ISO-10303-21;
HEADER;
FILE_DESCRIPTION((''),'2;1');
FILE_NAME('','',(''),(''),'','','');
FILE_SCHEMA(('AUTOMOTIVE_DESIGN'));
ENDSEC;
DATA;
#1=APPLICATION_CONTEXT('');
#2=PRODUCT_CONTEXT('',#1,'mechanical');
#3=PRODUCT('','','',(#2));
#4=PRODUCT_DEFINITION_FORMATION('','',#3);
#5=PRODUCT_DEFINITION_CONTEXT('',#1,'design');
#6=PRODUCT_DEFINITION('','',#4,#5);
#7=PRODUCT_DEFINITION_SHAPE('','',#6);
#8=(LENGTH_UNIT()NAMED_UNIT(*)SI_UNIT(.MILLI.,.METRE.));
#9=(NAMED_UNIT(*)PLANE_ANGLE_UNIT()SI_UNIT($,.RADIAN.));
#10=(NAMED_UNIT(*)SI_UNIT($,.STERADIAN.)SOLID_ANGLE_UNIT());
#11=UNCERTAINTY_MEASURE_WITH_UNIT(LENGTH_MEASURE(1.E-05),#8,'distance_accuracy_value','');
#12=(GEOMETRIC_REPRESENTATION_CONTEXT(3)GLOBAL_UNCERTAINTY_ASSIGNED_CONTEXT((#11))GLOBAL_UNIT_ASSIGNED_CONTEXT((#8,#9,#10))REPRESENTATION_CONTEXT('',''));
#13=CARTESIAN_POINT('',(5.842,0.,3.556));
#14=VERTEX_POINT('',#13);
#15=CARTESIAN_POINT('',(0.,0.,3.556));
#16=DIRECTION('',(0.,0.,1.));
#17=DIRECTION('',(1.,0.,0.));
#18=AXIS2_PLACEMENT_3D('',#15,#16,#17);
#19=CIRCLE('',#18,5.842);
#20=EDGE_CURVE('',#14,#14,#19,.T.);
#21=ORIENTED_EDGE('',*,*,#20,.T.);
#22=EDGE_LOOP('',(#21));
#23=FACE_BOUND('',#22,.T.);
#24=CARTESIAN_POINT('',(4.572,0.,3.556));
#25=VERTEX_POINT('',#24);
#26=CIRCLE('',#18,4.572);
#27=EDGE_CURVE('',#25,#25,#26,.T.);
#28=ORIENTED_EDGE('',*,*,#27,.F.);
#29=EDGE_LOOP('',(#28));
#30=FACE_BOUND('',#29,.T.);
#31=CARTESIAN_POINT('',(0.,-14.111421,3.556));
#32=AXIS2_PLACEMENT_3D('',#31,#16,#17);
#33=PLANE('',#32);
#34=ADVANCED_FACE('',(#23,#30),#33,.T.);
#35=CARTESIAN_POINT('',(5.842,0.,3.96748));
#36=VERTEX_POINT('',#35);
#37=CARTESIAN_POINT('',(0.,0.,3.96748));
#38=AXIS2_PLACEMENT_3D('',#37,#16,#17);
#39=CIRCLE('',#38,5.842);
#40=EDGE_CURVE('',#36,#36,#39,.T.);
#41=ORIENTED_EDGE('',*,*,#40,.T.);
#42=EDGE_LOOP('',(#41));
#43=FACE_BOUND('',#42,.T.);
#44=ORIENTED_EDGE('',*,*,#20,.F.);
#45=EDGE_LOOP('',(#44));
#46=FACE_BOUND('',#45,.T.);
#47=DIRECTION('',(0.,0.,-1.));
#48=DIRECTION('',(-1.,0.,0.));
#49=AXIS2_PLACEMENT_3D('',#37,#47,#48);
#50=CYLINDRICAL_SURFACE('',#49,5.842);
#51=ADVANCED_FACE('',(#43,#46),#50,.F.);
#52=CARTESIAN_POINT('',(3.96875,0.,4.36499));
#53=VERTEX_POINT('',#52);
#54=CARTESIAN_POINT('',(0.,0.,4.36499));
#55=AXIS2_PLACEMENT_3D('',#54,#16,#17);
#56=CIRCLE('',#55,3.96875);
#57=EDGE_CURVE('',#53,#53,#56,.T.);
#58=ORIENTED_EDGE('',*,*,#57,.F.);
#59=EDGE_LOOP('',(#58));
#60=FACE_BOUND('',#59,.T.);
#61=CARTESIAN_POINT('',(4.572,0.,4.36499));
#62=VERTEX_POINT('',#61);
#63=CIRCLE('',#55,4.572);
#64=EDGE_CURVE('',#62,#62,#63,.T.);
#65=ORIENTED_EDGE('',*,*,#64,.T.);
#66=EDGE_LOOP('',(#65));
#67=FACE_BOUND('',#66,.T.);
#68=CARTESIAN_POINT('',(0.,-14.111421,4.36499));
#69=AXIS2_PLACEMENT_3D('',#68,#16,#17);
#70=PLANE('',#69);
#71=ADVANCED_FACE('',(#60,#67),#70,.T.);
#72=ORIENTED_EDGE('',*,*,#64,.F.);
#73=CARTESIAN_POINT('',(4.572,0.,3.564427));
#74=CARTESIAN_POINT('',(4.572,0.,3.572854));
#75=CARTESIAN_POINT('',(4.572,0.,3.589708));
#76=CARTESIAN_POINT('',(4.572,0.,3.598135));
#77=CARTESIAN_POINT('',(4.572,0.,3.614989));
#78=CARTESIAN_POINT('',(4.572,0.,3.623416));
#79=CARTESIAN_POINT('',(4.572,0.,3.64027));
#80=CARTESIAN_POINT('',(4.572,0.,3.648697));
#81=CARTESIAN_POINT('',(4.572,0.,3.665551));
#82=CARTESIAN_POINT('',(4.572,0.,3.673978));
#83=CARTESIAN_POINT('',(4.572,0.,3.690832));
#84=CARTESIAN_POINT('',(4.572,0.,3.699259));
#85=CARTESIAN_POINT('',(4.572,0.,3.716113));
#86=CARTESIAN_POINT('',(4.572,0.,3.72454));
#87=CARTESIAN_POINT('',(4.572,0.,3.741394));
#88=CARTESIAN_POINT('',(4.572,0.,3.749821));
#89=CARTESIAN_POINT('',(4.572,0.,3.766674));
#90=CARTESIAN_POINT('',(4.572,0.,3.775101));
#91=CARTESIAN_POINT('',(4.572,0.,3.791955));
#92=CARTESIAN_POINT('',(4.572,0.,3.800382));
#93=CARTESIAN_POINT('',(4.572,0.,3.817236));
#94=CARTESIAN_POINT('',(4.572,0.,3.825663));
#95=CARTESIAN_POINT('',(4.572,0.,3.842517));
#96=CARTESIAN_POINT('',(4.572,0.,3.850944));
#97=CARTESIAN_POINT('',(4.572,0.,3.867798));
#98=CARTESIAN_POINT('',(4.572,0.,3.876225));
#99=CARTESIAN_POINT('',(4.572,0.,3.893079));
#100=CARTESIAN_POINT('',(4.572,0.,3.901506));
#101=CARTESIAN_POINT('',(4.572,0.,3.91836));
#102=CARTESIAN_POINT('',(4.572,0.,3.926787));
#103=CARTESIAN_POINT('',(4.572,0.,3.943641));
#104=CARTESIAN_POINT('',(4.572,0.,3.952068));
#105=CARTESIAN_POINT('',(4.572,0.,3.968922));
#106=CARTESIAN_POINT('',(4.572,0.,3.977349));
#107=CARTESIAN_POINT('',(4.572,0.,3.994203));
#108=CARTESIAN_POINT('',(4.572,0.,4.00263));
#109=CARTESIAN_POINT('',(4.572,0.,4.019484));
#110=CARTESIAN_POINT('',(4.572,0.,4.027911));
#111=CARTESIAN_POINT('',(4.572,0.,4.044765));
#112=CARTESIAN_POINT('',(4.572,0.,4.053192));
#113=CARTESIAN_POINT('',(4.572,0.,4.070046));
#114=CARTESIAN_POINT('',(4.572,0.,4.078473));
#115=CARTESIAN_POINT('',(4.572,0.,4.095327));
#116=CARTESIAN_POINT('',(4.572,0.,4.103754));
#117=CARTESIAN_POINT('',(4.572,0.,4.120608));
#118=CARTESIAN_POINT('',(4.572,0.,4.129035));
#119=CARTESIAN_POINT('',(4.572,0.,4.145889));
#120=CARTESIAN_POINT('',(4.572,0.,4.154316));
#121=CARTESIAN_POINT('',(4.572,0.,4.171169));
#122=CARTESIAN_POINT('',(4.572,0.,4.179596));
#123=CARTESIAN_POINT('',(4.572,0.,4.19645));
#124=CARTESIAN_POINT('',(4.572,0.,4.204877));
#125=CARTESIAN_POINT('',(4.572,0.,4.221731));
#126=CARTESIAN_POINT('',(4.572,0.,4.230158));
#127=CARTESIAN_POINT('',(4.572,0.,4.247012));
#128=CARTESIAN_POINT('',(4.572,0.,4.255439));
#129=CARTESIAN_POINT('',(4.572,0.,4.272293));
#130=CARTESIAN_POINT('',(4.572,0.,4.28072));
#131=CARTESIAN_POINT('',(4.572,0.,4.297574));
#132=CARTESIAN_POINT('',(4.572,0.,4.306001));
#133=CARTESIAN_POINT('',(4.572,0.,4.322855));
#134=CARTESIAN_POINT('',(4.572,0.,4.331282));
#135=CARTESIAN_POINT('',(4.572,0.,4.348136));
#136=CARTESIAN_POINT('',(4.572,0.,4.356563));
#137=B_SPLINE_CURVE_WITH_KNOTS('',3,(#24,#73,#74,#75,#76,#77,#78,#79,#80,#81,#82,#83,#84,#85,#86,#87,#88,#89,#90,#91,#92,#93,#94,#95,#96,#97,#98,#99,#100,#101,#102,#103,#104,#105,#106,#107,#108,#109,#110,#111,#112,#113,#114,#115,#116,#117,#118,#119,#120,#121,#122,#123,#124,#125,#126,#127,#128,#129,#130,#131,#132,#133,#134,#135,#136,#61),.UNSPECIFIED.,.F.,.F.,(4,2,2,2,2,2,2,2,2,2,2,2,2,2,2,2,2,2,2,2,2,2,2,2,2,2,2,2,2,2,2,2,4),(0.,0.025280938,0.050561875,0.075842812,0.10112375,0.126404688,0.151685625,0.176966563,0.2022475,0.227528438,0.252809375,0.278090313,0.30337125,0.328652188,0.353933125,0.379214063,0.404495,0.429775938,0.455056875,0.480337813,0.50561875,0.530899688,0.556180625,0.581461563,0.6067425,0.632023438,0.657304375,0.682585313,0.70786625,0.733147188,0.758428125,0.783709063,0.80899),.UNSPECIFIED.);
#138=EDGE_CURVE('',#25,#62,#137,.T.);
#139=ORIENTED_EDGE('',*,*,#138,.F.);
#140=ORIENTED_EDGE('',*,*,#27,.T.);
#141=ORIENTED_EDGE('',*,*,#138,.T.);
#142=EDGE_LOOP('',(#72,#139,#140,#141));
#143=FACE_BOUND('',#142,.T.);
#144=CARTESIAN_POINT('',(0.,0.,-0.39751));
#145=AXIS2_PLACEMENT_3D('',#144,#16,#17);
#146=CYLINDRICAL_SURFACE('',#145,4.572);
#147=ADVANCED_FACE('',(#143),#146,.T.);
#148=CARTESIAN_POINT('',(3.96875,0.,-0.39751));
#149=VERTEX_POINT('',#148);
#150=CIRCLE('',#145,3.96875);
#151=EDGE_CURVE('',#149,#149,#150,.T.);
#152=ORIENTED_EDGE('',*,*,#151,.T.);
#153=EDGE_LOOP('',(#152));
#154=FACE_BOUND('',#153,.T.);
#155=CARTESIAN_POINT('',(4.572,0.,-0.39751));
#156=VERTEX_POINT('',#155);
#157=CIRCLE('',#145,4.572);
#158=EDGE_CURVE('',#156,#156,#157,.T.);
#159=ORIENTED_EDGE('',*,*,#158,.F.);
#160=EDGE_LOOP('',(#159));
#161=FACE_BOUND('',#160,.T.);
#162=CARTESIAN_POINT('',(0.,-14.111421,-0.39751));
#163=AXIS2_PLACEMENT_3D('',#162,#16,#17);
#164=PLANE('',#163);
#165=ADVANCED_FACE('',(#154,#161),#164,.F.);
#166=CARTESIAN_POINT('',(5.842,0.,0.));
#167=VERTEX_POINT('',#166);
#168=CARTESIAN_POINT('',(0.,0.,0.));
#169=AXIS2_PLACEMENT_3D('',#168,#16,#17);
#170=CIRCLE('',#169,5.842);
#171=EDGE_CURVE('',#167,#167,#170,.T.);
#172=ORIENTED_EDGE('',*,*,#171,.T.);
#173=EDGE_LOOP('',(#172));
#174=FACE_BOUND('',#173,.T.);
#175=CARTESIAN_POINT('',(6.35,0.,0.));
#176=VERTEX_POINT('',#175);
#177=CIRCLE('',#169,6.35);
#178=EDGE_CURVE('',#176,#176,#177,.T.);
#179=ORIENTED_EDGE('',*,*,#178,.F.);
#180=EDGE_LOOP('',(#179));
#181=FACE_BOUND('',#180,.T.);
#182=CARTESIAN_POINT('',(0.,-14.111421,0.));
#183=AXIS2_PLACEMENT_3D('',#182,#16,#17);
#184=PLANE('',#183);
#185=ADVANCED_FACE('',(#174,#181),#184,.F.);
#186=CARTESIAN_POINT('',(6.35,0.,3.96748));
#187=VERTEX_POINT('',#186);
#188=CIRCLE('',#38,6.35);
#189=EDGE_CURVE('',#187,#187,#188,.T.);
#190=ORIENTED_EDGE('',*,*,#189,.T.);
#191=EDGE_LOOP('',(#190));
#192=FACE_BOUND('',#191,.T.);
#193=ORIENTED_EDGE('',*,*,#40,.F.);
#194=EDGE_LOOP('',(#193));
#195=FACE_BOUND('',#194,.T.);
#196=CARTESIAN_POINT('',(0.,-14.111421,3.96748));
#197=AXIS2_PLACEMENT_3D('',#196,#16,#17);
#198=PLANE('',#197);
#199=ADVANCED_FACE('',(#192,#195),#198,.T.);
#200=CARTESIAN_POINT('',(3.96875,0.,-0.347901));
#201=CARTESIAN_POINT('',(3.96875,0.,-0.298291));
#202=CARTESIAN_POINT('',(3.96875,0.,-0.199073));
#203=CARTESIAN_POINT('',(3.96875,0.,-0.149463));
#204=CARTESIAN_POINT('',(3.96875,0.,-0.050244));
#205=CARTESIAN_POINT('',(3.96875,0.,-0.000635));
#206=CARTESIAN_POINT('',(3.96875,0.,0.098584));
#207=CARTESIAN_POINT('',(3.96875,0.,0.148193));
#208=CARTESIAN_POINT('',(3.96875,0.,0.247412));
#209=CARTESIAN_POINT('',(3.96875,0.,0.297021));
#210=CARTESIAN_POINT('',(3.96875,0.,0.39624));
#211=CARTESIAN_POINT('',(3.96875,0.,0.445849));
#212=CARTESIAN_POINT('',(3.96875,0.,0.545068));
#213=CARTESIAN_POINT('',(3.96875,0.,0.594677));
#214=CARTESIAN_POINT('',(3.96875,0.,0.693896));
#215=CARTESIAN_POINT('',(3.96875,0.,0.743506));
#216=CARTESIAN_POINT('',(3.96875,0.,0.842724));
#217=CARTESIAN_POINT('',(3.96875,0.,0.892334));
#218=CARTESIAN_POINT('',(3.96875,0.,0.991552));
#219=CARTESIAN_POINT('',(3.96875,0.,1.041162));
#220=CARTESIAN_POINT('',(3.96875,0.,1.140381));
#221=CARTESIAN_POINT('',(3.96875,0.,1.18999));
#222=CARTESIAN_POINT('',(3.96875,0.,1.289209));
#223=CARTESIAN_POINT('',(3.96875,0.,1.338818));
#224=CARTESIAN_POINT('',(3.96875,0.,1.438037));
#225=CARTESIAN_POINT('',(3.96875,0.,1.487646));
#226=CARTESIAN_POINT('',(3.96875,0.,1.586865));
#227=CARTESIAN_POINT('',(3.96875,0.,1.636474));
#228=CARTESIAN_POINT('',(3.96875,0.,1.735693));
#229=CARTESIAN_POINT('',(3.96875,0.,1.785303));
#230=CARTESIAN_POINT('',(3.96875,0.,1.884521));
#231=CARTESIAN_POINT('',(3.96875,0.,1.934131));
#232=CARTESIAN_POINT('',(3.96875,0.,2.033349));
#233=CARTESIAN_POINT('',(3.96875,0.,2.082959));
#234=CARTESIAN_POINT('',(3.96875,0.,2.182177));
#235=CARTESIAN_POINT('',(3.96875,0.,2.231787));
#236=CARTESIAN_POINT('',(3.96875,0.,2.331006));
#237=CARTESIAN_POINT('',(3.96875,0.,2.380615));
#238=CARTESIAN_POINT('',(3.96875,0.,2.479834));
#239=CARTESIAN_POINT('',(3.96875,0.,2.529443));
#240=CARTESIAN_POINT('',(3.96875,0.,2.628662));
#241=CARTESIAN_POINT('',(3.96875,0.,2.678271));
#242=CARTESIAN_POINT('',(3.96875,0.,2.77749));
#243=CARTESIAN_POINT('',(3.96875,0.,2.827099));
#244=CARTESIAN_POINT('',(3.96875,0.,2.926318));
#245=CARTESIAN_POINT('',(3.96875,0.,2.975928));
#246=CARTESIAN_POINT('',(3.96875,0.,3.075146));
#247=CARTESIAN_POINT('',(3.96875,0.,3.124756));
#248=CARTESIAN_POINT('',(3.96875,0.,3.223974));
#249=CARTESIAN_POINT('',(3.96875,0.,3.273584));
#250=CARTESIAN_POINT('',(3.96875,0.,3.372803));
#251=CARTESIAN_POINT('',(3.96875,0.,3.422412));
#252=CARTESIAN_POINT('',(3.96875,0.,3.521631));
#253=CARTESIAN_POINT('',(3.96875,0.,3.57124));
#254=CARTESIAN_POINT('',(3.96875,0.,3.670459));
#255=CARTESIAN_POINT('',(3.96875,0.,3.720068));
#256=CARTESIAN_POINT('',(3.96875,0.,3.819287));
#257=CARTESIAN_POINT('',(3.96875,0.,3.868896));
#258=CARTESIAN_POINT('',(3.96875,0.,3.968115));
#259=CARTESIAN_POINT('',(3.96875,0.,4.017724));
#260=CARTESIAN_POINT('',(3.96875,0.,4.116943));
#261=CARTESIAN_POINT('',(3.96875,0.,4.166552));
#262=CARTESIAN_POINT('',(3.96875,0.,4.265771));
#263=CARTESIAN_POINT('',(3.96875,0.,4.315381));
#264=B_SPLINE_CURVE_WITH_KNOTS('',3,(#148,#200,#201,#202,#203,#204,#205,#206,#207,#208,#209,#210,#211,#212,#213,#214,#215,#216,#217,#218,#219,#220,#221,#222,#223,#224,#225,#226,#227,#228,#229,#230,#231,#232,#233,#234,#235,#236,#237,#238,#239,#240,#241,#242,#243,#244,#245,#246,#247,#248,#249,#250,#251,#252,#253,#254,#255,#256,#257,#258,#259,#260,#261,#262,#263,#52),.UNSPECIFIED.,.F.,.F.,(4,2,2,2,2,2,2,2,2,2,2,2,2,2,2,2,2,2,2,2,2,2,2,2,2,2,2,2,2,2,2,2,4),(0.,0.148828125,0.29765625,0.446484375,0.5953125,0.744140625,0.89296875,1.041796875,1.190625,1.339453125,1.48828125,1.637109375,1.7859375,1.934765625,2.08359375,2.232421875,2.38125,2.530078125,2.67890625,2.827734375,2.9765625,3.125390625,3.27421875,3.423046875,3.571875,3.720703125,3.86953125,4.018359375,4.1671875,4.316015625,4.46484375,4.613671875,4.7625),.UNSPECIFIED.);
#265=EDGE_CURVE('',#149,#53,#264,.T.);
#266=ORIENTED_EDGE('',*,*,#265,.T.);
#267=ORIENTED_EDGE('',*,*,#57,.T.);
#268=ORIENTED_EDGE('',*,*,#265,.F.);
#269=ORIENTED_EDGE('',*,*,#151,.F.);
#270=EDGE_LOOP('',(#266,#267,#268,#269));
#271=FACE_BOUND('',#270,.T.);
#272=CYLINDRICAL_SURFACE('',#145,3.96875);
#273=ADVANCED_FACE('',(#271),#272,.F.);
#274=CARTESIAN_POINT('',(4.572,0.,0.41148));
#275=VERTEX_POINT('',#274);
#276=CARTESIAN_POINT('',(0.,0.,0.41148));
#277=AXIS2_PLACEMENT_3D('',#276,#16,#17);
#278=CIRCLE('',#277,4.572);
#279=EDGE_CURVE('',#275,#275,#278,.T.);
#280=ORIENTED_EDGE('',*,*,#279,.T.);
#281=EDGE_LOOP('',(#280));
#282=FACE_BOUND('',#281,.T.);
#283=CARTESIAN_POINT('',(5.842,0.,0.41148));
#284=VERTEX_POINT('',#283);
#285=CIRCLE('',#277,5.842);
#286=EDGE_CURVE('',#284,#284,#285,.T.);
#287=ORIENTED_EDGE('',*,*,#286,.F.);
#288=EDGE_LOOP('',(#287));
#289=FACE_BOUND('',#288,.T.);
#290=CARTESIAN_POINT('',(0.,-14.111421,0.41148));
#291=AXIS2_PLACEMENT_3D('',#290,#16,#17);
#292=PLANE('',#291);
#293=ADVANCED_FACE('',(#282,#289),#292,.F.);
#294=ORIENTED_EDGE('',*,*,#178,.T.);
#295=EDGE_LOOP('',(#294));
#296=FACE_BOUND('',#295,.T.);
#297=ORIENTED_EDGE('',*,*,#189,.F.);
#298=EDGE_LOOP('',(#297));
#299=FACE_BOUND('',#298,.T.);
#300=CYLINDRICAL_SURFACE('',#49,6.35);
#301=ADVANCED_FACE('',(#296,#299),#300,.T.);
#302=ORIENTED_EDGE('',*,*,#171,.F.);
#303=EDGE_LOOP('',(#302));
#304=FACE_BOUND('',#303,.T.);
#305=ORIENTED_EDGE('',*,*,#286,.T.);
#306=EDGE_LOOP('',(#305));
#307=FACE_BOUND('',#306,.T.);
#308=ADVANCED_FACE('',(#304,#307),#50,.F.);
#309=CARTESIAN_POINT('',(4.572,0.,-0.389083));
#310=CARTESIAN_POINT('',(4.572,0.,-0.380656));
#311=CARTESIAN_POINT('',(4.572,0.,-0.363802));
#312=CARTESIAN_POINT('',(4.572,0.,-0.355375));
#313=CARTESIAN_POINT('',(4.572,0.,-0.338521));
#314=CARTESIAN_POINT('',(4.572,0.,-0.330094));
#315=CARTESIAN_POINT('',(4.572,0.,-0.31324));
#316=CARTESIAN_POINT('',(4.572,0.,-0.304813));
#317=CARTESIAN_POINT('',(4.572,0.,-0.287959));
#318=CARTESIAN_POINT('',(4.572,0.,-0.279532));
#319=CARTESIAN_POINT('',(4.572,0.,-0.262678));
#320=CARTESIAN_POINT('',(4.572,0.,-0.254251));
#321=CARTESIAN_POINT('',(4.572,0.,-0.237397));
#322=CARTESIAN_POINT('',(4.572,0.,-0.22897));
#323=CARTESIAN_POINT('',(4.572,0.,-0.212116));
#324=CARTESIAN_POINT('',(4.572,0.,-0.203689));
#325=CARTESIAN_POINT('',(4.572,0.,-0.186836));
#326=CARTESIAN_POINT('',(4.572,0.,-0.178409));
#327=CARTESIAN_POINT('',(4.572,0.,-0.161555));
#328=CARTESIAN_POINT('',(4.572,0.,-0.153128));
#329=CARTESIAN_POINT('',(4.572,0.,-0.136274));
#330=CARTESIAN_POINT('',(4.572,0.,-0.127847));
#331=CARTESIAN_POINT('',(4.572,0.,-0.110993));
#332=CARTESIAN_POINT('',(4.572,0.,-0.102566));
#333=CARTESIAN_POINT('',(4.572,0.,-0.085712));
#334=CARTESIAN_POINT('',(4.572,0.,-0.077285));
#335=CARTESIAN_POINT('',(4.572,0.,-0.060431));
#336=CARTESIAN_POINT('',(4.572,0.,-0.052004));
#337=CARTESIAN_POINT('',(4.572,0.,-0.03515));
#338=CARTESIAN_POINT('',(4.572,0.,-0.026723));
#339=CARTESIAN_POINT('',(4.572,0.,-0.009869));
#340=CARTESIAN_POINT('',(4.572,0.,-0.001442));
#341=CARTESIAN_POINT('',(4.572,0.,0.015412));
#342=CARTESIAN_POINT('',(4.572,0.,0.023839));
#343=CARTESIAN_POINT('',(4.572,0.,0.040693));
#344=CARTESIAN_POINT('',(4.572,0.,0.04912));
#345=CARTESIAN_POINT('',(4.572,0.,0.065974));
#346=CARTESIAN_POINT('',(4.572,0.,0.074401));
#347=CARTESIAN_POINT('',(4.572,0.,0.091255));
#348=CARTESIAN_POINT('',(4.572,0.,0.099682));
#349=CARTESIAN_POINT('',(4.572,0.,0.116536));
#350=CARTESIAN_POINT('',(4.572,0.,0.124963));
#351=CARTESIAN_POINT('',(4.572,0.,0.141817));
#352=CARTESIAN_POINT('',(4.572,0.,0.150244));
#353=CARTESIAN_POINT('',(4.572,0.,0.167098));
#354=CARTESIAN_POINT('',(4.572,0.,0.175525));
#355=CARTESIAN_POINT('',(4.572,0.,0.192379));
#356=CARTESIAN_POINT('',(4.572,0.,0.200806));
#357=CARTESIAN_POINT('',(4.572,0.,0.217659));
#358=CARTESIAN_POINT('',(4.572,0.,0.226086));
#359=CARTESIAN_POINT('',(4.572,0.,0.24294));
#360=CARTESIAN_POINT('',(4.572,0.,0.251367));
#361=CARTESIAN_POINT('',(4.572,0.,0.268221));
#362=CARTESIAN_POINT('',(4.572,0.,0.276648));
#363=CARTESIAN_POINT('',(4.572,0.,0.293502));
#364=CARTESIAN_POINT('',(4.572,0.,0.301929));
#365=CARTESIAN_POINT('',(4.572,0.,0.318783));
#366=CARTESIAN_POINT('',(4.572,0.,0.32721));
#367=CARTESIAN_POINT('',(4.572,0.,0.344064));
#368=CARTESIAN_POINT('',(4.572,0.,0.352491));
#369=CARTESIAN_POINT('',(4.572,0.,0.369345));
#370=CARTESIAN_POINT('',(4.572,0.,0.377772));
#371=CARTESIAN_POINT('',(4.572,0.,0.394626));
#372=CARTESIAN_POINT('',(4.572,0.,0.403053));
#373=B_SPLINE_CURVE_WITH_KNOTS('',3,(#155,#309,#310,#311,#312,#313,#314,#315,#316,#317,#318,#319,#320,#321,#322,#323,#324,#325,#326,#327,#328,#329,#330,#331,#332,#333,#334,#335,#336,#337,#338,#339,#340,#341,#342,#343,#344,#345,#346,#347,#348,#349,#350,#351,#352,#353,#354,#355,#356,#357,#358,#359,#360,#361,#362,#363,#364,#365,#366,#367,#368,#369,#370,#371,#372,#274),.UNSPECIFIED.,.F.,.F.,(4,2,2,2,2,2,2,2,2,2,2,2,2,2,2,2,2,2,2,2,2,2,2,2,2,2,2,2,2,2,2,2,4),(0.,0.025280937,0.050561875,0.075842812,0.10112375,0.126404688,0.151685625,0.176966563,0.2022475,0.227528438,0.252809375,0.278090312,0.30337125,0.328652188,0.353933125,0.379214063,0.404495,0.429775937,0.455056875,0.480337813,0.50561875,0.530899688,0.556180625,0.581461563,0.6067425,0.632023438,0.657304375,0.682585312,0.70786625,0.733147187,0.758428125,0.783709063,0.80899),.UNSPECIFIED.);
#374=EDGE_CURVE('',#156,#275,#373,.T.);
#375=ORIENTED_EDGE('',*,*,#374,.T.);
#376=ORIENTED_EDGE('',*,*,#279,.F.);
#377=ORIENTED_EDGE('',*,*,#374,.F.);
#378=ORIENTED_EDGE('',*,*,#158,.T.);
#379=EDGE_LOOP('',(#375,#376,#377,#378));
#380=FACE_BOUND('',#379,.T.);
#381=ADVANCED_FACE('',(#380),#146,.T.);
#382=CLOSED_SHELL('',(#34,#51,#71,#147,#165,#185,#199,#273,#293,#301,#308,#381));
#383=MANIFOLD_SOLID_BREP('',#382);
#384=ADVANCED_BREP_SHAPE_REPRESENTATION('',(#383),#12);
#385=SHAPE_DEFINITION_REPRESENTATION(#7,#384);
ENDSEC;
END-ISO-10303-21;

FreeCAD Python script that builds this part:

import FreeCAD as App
import Part
import Sketcher
from FreeCAD import Vector
Q = App.Units.Quantity

doc = App.newDocument("Part")
body = doc.addObject("PartDesign::Body", "Body")

sketch1 = body.newObject("Sketcher::SketchObject", "Sketch")
sketch1.AttachmentSupport = (doc.getObject("XY_Plane"), [""])
sketch1.MapMode = "FlatFace"
sketch1.addGeometry(Part.Circle(Vector(0, 0, 0), Vector(0, 0, 1), 6), False)
sketch1.addGeometry(Part.Circle(Vector(0, 0, 0), Vector(0, 0, 1), 6), False)
sketch1.addConstraint(Sketcher.Constraint("Coincident", 0, 3, -1, 1))
sketch1.addConstraint(Sketcher.Constraint("Coincident", 1, 3, -1, 1))
sketch1.addConstraint(Sketcher.Constraint("Diameter", 0, Q("0.5 in")))
sketch1.addConstraint(Sketcher.Constraint("Diameter", 1, Q("0.46 in")))
pad1 = body.newObject("PartDesign::Pad", "Pad")
pad1.Profile = sketch1
pad1.Length = Q("0.1562 in")
body2 = doc.addObject("PartDesign::Body", "Body001")

sketch2 = body2.newObject("Sketcher::SketchObject", "Sketch001")
sketch2.AttachmentSupport = (doc.getObject("XY_Plane001"), [""])
sketch2.MapMode = "FlatFace"
sketch2.addGeometry(Part.Circle(Vector(0, 0, 0), Vector(0, 0, 1), 4.6), False)
sketch2.addGeometry(Part.Circle(Vector(0, 0, 0), Vector(0, 0, 1), 4), False)
sketch2.addConstraint(Sketcher.Constraint("Coincident", 0, 3, -1, 1))
sketch2.addConstraint(Sketcher.Constraint("Coincident", 1, 3, -1, 1))
sketch2.addConstraint(Sketcher.Constraint("Diameter", 0, Q("0.36 in")))
sketch2.addConstraint(Sketcher.Constraint("Diameter", 1, Q("0.3125 in")))
pad2 = body2.newObject("PartDesign::Pad", "Pad001")
pad2.Profile = sketch2
pad2.Type = "TwoLengths"
pad2.Length = 4.36499
pad2.Length2 = 0.39751
body.AllowCompound = True
doc.recompute()

boolean = body.newObject("PartDesign::Boolean", "Boolean")
boolean.Type = "Fuse"
boolean.addObjects([body2])

sketch3 = body.newObject("Sketcher::SketchObject", "Sketch002")
sketch3.AttachmentSupport = (doc.getObject("XY_Plane"), [""])
sketch3.MapMode = "FlatFace"
sketch3.AttachmentOffset = App.Placement(Vector(0, 0, 0.0162 * 25.4), App.Rotation())
sketch3.addGeometry(Part.Circle(Vector(0, 0, 0), Vector(0, 0, 1), 5.8), False)
sketch3.addGeometry(Part.Circle(Vector(0, 0, 0), Vector(0, 0, 1), 4.6), False)
sketch3.addConstraint(Sketcher.Constraint("Coincident", 0, 3, -1, 1))
sketch3.addConstraint(Sketcher.Constraint("Coincident", 1, 3, -1, 1))
sketch3.addConstraint(Sketcher.Constraint("Diameter", 0, Q("0.46 in")))
sketch3.addConstraint(Sketcher.Constraint("Diameter", 1, Q("0.36 in")))
pad3 = body.newObject("PartDesign::Pad", "Pad002")
pad3.Profile = sketch3
pad3.Length = Q("0.1238 in")

doc.recompute()
